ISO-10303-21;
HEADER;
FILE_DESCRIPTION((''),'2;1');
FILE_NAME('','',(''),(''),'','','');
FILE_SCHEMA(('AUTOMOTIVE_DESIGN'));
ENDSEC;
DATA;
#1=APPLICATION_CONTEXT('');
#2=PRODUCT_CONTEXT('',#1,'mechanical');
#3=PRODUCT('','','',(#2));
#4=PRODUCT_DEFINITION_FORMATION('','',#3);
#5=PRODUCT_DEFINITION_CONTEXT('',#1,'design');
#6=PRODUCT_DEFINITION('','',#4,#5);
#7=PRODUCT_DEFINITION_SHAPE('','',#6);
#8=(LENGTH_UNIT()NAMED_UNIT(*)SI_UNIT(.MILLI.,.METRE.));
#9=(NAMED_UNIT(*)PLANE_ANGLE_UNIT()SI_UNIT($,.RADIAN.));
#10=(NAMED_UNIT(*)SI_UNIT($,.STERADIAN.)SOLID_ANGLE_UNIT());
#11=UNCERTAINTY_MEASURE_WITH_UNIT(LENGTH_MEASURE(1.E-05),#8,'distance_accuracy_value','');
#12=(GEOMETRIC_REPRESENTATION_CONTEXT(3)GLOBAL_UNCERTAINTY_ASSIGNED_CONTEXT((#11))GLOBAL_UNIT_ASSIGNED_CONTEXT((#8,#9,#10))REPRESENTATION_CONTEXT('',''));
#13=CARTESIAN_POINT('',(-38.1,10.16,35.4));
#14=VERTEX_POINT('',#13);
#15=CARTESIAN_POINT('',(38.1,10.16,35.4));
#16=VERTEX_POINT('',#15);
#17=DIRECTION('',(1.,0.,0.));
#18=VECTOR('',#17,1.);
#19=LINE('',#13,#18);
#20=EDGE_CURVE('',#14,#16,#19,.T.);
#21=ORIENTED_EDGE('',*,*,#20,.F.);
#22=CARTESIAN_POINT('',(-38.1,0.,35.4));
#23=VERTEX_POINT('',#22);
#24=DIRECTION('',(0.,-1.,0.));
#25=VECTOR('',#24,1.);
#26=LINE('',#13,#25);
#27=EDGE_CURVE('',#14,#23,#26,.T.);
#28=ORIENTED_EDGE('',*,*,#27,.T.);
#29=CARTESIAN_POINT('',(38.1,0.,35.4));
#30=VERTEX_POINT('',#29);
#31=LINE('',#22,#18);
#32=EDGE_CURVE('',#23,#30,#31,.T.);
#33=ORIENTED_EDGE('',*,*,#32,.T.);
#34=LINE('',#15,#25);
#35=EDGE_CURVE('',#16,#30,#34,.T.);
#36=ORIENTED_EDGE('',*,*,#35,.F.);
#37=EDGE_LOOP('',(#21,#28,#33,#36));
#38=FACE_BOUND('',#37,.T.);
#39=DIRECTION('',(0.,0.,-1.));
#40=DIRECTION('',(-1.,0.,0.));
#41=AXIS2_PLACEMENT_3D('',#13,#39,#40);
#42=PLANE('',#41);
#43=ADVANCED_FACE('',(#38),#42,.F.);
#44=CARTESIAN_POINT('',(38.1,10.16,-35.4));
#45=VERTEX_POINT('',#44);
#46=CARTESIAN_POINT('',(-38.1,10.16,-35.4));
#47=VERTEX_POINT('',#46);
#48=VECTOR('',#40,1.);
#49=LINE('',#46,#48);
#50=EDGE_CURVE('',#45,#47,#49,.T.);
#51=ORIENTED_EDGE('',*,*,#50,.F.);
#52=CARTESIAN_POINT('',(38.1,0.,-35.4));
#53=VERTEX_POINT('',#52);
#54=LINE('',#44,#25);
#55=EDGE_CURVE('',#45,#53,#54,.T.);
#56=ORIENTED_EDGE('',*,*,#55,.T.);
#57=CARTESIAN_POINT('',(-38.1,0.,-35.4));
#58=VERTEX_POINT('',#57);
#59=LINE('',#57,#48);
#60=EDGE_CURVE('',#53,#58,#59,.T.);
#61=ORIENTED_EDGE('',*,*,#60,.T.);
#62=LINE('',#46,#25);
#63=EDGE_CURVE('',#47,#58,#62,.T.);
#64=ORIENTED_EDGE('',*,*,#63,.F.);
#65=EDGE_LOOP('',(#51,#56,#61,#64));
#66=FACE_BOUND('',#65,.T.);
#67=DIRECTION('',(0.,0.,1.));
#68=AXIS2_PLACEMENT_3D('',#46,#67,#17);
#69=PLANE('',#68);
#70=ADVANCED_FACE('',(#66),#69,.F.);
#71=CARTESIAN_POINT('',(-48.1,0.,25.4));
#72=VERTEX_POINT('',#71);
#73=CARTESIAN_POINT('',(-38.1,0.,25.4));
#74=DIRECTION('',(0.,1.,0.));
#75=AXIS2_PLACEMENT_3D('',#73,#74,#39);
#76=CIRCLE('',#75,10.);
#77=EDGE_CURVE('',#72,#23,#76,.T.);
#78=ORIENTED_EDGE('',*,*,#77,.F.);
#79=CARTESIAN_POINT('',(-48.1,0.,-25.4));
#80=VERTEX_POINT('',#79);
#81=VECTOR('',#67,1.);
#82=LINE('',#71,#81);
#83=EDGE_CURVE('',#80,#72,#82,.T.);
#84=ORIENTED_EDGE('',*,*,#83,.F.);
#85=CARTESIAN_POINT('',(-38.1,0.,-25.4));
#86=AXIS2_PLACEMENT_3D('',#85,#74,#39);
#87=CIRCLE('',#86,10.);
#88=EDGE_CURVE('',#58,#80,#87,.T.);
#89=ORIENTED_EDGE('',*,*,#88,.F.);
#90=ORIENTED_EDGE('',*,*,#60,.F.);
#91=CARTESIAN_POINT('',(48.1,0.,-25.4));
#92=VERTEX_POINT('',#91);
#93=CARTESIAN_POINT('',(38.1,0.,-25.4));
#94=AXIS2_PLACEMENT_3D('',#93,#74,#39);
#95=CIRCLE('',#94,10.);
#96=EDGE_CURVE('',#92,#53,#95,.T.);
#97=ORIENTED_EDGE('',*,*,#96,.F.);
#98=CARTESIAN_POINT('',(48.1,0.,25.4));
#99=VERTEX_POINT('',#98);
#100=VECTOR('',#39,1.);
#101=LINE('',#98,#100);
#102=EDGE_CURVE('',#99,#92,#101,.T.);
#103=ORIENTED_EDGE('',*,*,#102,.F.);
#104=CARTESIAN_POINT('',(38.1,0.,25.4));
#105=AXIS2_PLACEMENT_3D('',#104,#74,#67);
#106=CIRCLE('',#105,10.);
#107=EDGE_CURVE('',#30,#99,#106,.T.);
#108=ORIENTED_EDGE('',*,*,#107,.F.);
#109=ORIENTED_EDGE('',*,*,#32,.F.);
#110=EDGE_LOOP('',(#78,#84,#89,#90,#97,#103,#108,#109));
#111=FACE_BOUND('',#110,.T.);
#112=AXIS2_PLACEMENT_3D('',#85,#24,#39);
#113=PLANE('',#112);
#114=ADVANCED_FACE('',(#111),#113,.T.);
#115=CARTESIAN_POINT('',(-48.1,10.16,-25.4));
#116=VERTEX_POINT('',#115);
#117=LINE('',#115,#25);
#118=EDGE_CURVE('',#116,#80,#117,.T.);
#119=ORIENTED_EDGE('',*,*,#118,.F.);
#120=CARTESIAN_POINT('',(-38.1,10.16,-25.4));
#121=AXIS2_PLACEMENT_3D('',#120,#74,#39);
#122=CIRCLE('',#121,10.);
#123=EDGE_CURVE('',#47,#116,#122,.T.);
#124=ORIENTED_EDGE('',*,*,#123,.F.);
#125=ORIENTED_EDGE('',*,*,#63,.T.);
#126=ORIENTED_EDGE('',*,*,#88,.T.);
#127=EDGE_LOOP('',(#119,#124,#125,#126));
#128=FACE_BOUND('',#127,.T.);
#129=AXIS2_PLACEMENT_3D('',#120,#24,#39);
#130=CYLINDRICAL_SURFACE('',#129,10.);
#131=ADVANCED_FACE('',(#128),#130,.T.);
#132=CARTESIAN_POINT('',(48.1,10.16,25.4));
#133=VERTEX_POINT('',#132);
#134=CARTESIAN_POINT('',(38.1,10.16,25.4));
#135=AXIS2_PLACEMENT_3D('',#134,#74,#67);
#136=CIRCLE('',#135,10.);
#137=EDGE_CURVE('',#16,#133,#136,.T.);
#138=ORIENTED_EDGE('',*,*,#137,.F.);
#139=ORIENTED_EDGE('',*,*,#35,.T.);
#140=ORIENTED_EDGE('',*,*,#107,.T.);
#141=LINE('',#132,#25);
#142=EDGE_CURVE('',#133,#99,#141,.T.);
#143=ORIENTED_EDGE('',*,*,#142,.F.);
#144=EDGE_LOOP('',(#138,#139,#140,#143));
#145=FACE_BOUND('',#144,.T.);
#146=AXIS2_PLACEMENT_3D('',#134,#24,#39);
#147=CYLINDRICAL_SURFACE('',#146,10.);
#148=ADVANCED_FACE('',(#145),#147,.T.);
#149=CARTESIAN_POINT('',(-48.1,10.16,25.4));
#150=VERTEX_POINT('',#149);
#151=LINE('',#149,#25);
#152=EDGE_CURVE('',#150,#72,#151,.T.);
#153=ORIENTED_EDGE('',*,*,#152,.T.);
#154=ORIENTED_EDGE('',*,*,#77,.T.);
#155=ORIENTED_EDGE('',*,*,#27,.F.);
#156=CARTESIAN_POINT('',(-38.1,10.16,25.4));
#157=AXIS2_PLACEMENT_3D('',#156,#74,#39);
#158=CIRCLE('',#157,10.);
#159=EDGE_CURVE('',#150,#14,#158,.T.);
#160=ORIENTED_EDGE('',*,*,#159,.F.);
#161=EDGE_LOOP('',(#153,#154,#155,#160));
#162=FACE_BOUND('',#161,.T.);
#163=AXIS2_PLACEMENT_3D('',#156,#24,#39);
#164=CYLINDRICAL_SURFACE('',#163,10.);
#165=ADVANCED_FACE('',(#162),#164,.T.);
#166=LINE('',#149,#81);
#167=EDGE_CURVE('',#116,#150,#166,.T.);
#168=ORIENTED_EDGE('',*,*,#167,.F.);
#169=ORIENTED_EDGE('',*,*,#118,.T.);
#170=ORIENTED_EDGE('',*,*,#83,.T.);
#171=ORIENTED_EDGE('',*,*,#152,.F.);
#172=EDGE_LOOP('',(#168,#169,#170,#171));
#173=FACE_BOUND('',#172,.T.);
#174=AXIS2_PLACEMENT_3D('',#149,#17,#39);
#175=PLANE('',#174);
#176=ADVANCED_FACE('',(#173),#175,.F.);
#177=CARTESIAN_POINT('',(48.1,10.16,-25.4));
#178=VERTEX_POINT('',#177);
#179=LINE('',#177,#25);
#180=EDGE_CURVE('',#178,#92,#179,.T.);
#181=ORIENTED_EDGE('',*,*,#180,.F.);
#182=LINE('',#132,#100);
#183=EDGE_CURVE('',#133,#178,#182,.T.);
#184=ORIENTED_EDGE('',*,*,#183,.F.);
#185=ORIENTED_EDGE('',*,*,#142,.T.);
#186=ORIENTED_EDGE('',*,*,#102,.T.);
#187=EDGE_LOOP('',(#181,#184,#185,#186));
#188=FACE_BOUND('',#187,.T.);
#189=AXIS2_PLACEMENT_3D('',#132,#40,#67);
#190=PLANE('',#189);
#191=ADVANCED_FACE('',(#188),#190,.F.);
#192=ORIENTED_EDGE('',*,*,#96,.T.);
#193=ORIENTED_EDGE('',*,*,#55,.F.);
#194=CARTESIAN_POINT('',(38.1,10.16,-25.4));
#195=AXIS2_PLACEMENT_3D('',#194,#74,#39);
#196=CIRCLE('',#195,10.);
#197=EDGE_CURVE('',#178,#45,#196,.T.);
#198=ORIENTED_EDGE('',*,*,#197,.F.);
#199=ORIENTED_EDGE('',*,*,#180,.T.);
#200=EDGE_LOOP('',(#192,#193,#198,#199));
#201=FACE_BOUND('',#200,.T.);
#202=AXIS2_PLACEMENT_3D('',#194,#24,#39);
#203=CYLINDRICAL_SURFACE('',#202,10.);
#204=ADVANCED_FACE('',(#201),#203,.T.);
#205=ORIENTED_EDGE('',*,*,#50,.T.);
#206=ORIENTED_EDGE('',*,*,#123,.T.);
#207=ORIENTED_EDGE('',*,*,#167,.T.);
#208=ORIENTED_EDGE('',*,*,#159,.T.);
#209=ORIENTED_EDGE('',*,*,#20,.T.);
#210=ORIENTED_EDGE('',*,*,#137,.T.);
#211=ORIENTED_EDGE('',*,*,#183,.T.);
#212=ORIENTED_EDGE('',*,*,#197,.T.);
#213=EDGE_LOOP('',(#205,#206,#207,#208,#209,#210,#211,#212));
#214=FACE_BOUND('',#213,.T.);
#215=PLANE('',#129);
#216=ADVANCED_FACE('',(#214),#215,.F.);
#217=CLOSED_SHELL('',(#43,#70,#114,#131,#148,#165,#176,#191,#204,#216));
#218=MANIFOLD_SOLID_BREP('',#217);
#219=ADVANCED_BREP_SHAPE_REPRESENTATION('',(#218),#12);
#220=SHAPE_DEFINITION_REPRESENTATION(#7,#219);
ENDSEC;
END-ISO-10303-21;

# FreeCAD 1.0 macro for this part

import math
import FreeCAD as App
import Part
import Sketcher
from FreeCAD import Vector
Q = App.Units.Quantity

doc = App.newDocument("Part")
body = doc.addObject("PartDesign::Body", "Body")

# Sketch on XZ plane
sketch1 = body.newObject("Sketcher::SketchObject", "Sketch")
sketch1.AttachmentSupport = (doc.getObject("XZ_Plane"), [""])
sketch1.MapMode = "FlatFace"
sketch1.addGeometry([
    Part.LineSegment(Vector(-38, 35, 0), Vector(38, 35, 0)),  # 0
    Part.ArcOfCircle(Part.Circle(Vector(38, 25, 0), Vector(0, 0, 1), 10), math.radians(0), math.radians(90)),  # 1
    Part.LineSegment(Vector(48, 25, 0), Vector(48, -25, 0)),  # 2
    Part.ArcOfCircle(Part.Circle(Vector(38, -25, 0), Vector(0, 0, 1), 10), math.radians(-90), math.radians(0)),  # 3
    Part.LineSegment(Vector(38, -35, 0), Vector(-38, -35, 0)),  # 4
    Part.ArcOfCircle(Part.Circle(Vector(-38, -25, 0), Vector(0, 0, 1), 10), math.radians(180), math.radians(270)),  # 5
    Part.LineSegment(Vector(-48, -25, 0), Vector(-48, 25, 0)),  # 6
    Part.ArcOfCircle(Part.Circle(Vector(-38, 25, 0), Vector(0, 0, 1), 10), math.radians(90), math.radians(180)),  # 7
], False)
sketch1.addConstraint([
    Sketcher.Constraint("Tangent", 0, 2, 1, 2),
    Sketcher.Constraint("Tangent", 1, 1, 2, 1),
    Sketcher.Constraint("Tangent", 2, 2, 3, 2),
    Sketcher.Constraint("Tangent", 3, 1, 4, 1),
    Sketcher.Constraint("Tangent", 4, 2, 5, 2),
    Sketcher.Constraint("Tangent", 5, 1, 6, 1),
    Sketcher.Constraint("Tangent", 6, 2, 7, 2),
    Sketcher.Constraint("Tangent", 7, 1, 0, 1),
    Sketcher.Constraint("Horizontal", 0),
    Sketcher.Constraint("Vertical", 2),
    Sketcher.Constraint("Horizontal", 4),
    Sketcher.Constraint("Vertical", 6),
    Sketcher.Constraint("Equal", 1, 3),
    Sketcher.Constraint("Equal", 3, 5),
    Sketcher.Constraint("Equal", 5, 7),
    Sketcher.Constraint("Symmetric", 1, 3, 5, 3, -1, 1),
    Sketcher.Constraint("DistanceX", 0, 1, 0, 2, Q("3 in")),
    Sketcher.Constraint("DistanceY", 2, 2, 2, 1, Q("2 in")),
    Sketcher.Constraint("Radius", 1, 10.0),
])
pad1 = body.newObject("PartDesign::Pad", "Pad")
pad1.Profile = sketch1
pad1.Length = Q("0.4 in")
pad1.Reversed = True

doc.recompute()
